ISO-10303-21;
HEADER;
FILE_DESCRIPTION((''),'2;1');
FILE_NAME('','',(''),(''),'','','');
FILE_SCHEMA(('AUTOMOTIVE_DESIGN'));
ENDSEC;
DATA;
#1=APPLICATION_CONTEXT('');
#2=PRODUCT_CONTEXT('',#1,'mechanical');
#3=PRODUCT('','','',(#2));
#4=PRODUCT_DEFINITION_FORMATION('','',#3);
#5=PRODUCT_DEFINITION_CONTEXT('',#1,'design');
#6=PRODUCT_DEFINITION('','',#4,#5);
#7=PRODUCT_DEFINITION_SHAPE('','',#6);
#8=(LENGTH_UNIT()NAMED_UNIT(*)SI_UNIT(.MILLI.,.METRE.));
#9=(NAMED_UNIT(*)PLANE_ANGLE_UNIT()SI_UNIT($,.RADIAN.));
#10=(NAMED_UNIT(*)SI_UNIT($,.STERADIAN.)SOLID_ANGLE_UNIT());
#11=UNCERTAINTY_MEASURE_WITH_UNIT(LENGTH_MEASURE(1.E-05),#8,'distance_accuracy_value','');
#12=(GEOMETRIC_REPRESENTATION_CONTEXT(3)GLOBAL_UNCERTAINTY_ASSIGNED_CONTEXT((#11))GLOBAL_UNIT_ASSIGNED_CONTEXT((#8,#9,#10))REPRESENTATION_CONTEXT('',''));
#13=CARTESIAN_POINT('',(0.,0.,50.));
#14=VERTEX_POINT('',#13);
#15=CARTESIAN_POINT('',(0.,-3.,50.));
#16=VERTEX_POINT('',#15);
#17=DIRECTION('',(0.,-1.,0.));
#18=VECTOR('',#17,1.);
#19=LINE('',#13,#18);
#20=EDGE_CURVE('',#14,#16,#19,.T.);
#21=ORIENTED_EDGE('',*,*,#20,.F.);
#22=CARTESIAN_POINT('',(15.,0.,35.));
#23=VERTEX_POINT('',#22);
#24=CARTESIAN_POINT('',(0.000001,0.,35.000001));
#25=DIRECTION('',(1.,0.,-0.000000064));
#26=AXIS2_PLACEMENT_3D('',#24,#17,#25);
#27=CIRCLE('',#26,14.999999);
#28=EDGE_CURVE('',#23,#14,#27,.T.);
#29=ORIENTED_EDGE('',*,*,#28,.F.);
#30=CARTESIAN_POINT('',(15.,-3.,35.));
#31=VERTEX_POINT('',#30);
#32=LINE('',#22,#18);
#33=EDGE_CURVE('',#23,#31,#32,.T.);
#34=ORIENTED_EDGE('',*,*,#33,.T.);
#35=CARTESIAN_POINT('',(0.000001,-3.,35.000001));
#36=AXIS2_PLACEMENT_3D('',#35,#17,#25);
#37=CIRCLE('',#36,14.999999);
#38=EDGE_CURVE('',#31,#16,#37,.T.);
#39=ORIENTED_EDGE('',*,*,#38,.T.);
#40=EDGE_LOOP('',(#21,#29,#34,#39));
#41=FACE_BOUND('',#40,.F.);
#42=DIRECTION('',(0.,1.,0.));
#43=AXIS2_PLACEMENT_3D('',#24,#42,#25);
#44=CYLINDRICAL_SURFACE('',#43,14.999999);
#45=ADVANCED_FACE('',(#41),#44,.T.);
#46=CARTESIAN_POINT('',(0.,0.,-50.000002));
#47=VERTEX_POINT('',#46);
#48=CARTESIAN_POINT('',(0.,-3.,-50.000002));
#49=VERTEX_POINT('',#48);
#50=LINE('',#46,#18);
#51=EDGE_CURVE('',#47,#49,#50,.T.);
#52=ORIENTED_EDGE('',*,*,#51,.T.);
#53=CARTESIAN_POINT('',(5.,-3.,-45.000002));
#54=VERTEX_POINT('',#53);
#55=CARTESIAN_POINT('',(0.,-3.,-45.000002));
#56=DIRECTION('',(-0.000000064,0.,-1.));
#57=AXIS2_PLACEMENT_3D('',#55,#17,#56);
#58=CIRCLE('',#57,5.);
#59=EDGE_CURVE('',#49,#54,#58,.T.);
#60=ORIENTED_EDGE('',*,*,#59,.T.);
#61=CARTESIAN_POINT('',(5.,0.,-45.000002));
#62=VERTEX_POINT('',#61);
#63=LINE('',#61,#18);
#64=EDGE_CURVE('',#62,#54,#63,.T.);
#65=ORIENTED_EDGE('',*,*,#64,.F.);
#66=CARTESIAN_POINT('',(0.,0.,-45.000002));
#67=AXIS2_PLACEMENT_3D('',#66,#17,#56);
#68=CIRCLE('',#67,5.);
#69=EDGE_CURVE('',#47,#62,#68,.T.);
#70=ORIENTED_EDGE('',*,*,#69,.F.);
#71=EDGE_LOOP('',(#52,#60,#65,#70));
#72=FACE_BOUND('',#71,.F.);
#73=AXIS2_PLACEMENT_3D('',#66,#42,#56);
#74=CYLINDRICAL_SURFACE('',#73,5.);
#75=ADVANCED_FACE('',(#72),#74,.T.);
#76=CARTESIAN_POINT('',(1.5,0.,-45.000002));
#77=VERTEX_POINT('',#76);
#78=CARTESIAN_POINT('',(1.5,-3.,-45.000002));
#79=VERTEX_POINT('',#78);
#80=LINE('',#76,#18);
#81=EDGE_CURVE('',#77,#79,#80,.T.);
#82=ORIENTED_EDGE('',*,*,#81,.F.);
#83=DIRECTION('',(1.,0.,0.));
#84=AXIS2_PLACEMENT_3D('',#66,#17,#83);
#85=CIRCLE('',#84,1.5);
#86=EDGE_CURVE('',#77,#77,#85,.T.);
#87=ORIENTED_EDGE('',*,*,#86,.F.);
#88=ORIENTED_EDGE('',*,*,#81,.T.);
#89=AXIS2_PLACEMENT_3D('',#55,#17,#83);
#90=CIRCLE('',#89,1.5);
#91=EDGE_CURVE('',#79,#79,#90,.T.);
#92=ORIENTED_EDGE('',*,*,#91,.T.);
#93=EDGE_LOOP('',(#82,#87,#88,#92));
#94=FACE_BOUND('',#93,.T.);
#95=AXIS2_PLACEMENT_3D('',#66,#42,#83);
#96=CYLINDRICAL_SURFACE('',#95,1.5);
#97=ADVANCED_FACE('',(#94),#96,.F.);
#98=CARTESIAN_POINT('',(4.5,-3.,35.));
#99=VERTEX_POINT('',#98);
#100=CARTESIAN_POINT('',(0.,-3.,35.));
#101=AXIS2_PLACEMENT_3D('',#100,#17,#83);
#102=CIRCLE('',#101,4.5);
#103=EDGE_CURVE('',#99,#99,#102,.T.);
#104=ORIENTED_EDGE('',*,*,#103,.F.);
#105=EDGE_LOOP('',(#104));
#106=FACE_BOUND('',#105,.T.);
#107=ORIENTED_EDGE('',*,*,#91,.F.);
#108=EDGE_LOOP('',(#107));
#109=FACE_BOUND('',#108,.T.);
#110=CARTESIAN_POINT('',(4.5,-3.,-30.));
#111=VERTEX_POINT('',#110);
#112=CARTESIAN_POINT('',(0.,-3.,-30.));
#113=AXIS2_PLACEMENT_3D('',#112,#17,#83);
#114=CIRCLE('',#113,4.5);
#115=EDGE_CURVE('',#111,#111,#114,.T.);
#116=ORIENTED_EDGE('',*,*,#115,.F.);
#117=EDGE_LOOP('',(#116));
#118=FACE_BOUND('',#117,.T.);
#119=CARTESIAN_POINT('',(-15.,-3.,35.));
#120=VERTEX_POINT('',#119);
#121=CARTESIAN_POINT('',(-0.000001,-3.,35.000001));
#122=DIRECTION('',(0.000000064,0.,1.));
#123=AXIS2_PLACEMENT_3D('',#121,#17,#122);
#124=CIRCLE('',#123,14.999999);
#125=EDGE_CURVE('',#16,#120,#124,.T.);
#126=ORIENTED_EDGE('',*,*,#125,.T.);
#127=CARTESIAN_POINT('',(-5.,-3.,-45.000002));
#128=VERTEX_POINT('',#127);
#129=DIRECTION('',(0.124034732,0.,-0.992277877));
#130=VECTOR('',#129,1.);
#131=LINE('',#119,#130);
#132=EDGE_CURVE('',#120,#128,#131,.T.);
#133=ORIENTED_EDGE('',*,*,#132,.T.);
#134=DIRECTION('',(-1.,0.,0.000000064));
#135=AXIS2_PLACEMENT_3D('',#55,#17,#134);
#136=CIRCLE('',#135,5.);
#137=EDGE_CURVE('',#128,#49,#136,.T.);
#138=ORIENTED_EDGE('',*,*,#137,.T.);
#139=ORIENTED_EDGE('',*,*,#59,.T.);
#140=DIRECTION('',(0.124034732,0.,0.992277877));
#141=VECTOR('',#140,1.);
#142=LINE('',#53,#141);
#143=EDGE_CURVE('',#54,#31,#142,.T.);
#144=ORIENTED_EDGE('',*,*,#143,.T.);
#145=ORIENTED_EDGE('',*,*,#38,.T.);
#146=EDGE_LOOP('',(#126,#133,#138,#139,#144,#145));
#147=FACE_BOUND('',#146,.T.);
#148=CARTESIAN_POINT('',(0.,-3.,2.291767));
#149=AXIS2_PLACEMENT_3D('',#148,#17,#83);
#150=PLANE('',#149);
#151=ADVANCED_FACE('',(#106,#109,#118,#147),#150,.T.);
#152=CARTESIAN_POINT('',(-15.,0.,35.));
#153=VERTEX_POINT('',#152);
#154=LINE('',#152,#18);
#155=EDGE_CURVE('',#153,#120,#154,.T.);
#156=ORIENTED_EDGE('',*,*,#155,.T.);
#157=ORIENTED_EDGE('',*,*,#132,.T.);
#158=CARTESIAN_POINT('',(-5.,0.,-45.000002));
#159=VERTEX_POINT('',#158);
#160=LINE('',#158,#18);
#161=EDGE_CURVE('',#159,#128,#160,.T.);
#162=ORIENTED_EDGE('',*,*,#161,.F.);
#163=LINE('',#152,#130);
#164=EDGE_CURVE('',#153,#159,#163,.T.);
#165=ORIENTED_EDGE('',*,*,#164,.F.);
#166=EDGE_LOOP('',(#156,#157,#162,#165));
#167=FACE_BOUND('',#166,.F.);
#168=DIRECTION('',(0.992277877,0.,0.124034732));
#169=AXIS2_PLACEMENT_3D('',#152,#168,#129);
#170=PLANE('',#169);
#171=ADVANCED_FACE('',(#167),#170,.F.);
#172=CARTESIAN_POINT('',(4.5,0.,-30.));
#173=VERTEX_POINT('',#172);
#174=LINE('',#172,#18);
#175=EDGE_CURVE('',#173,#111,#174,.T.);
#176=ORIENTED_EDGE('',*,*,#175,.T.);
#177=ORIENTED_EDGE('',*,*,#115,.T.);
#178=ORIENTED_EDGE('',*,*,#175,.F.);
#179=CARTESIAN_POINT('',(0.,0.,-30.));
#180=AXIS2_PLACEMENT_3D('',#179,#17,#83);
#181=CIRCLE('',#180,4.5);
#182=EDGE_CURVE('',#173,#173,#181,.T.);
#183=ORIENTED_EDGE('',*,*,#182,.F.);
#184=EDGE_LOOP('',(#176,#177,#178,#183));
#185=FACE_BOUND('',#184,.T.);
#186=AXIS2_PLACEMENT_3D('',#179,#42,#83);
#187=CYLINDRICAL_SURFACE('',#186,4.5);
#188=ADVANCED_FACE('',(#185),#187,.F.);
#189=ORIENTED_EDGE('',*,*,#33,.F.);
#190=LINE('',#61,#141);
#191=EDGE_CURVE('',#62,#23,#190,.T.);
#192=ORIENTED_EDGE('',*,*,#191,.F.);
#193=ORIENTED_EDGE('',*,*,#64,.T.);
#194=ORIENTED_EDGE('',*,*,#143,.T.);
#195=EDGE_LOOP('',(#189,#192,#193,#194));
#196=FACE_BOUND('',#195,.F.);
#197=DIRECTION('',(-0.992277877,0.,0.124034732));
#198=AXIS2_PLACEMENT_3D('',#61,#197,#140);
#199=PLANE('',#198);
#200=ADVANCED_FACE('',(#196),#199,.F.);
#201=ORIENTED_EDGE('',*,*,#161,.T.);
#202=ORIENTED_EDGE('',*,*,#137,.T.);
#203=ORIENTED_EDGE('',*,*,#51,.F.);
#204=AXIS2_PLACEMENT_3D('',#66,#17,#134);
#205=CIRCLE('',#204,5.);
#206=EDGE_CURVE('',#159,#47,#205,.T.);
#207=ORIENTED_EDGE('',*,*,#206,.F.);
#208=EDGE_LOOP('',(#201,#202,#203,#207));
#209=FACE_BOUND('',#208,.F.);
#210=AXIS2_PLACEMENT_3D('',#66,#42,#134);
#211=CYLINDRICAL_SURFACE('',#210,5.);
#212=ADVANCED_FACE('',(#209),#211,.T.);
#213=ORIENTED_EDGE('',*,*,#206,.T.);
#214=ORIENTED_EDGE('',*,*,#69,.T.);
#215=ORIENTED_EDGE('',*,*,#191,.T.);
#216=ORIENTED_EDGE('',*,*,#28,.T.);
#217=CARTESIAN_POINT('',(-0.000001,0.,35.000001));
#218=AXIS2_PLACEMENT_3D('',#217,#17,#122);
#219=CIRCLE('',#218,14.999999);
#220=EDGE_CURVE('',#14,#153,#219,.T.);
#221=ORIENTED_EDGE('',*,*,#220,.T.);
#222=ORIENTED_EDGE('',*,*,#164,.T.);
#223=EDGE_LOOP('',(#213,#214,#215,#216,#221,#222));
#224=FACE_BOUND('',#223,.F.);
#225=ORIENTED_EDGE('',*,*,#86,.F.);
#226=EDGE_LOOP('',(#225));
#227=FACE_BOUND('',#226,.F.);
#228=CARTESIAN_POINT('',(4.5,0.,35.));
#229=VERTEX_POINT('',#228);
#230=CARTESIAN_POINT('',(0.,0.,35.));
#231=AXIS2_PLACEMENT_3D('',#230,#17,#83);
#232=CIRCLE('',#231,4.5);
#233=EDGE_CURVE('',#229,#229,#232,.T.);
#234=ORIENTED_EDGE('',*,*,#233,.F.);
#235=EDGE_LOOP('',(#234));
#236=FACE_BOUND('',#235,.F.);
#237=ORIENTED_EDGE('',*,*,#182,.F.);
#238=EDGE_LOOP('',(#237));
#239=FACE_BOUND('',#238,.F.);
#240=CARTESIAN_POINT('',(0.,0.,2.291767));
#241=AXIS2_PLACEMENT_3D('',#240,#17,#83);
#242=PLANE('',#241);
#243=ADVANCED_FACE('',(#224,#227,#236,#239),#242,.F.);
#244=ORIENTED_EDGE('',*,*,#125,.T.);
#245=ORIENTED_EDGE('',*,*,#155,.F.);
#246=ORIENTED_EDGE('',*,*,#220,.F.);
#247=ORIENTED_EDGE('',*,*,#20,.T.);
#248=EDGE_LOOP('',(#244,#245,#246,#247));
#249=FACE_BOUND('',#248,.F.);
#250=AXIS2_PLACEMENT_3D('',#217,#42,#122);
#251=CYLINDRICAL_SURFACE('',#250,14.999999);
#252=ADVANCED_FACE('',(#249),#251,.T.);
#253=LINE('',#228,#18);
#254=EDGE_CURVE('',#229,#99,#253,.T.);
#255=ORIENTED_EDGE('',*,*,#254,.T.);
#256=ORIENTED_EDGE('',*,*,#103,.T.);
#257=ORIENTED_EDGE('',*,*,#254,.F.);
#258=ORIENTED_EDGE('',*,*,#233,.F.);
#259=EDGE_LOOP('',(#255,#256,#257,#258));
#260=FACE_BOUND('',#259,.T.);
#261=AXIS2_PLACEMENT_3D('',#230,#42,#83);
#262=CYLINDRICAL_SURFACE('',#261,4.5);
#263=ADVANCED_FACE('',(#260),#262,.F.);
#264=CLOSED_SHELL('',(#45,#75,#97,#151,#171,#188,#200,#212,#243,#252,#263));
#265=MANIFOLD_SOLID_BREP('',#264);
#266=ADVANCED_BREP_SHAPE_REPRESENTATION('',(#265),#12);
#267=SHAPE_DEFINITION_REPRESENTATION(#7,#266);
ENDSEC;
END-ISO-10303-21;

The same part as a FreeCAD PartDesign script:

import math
import FreeCAD as App
import Part
import Sketcher
from FreeCAD import Vector
Q = App.Units.Quantity

doc = App.newDocument("Part")
params = doc.addObject("Spreadsheet::Sheet", "Params")
for row, (alias, value) in enumerate([
    ("sketch1_diameter", "3 mm"),
    ("sketch1_diameter2", "9 mm"),
    ("sketch1_radius", "5 mm"),
    ("sketch1_radius2", "14.999999 mm"),
    ("pad1_length", "3 mm"),
], start=1):
    params.set(f"A{row}", alias)
    params.set(f"B{row}", "=" + value)
    params.setAlias(f"B{row}", alias)

body = doc.addObject("PartDesign::Body", "Body")

# Sketch on XZ plane
sketch1 = body.newObject("Sketcher::SketchObject", "Sketch")
sketch1.AttachmentSupport = (doc.getObject("XZ_Plane"), [""])
sketch1.MapMode = "FlatFace"
sketch1.addGeometry([
    Part.ArcOfCircle(Part.Circle(Vector(0, -45, 0), Vector(0, 0, 1), 5), math.radians(180), math.radians(270)),  # 0
    Part.ArcOfCircle(Part.Circle(Vector(0, -45, 0), Vector(0, 0, 1), 5), math.radians(-90), math.radians(0)),  # 1
    Part.LineSegment(Vector(5, -45, 0), Vector(15, 35, 0)),  # 2
    Part.ArcOfCircle(Part.Circle(Vector(0, 35, 0), Vector(0, 0, 1), 15), math.radians(0), math.radians(90)),  # 3
    Part.ArcOfCircle(Part.Circle(Vector(0, 35, 0), Vector(0, 0, 1), 15), math.radians(90), math.radians(180)),  # 4
    Part.LineSegment(Vector(-15, 35, 0), Vector(-5, -45, 0)),  # 5
    Part.Circle(Vector(0, -45, 0), Vector(0, 0, 1), 1.5),  # 6
    Part.Circle(Vector(0, -30, 0), Vector(0, 0, 1), 4.5),  # 7
    Part.Circle(Vector(0, 35, 0), Vector(0, 0, 1), 4.5),  # 8
], False)
sketch1.addConstraint([
    Sketcher.Constraint("Tangent", 0, 2, 1, 1),
    Sketcher.Constraint("Coincident", 1, 2, 2, 1),
    Sketcher.Constraint("Coincident", 2, 2, 3, 1),
    Sketcher.Constraint("Tangent", 3, 2, 4, 1),
    Sketcher.Constraint("Coincident", 4, 2, 5, 1),
    Sketcher.Constraint("Coincident", 5, 2, 0, 1),
    Sketcher.Constraint("Coincident", 6, 3, 0, 3),
    Sketcher.Constraint("Coincident", 8, 3, 3, 3),
    Sketcher.Constraint("Equal", 0, 1),
    Sketcher.Constraint("Equal", 3, 4),
    Sketcher.Constraint("Equal", 7, 8),
    Sketcher.Constraint("Symmetric", 0, 2, 3, 2, -1, 1),
    Sketcher.Constraint("Symmetric", 2, 2, 4, 2, -2),
    Sketcher.Constraint("Symmetric", 1, 2, 5, 2, -2),
    Sketcher.Constraint("PointOnObject", 7, 3, -2),
    Sketcher.Constraint("PointOnObject", 0, 2, -2),
    Sketcher.Constraint("Horizontal", 6, 3, 1, 2),
    Sketcher.Constraint("Horizontal", 8, 3, 2, 2),
    Sketcher.Constraint("Diameter", 6, Q("3 mm")),
    Sketcher.Constraint("Diameter", 7, Q("9 mm")),
    Sketcher.Constraint("Radius", 0, Q("5 mm")),
    Sketcher.Constraint("Radius", 3, Q("14.999999 mm")),
    Sketcher.Constraint("DistanceY", -1, 1, 3, 3, Q("35.000001 mm")),
    Sketcher.Constraint("DistanceY", 7, 3, -1, 1, Q("30 mm")),
])
sketch1.setExpression("Constraints[18]", "Params.sketch1_diameter")
sketch1.setExpression("Constraints[19]", "Params.sketch1_diameter2")
sketch1.setExpression("Constraints[20]", "Params.sketch1_radius")
sketch1.setExpression("Constraints[21]", "Params.sketch1_radius2")
pad1 = body.newObject("PartDesign::Pad", "Pad")
pad1.Profile = sketch1
pad1.setExpression("Length", "Params.pad1_length")

doc.recompute()
